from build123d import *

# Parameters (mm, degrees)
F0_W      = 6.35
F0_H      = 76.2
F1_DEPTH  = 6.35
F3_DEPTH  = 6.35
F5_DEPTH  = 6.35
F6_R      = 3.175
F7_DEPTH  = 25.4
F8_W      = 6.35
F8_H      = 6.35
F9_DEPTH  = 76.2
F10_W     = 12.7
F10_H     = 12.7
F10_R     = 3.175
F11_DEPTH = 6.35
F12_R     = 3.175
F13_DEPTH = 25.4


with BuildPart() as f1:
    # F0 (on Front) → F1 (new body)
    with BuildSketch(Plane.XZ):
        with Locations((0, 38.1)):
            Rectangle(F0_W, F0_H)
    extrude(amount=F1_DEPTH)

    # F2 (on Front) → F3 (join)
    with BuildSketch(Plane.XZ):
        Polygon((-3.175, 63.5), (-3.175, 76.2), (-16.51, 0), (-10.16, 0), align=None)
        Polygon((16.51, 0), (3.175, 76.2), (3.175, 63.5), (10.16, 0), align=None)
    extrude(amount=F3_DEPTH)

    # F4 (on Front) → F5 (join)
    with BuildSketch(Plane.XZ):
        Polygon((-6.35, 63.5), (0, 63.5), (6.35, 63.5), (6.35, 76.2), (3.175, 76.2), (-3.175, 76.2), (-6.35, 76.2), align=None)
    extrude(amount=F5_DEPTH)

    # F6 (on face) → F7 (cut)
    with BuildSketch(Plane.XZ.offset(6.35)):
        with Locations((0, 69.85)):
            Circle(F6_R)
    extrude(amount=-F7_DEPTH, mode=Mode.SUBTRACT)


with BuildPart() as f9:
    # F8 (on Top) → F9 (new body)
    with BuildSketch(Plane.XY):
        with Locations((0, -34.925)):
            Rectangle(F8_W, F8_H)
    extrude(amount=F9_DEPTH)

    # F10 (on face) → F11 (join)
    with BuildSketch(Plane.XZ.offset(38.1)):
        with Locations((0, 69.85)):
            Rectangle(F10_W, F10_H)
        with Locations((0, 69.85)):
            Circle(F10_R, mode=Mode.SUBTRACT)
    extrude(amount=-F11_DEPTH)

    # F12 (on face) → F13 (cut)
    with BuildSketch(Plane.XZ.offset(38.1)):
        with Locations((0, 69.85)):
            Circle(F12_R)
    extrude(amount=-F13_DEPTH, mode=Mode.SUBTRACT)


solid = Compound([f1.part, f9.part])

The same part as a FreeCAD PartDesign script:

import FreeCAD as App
import Part
import Sketcher
Q = App.Units.Quantity


def add_polygon(sketch, points):
    """Adds a closed chain of lines whose ends are joined by coincident constraints."""
    first, n = sketch.GeometryCount, len(points)
    for a, b in zip(points, points[1:] + points[:1]):
        sketch.addGeometry(Part.LineSegment(App.Vector(*a, 0), App.Vector(*b, 0)), False)
    for i in range(n):
        sketch.addConstraint(Sketcher.Constraint("Coincident", first + i, 2, first + (i + 1) % n, 1))

doc = App.newDocument("Part")
body = doc.addObject("PartDesign::Body", "Body")

# Sketch on XZ plane
sketch1 = body.newObject("Sketcher::SketchObject", "Sketch")
sketch1.AttachmentSupport = (doc.getObject("XZ_Plane"), [""])
sketch1.MapMode = "FlatFace"
add_polygon(sketch1, [(-3, 76), (-3, 0), (3, 0), (3, 76)])  # lines 0-3
sketch1.addConstraint([
    Sketcher.Constraint("Vertical", 0),
    Sketcher.Constraint("Horizontal", 1),
    Sketcher.Constraint("Vertical", 2),
    Sketcher.Constraint("Horizontal", 3),
    Sketcher.Constraint("Symmetric", 0, 2, 1, 2, -1, 1),
    Sketcher.Constraint("DistanceY", 0, 2, 0, 1, Q("3 in")),
    Sketcher.Constraint("DistanceX", 1, 1, 1, 2, Q("0.25 in")),
])
pad1 = body.newObject("PartDesign::Pad", "Pad")
pad1.Profile = sketch1
pad1.Length = Q("0.25 in")

# Sketch on XZ plane
sketch2 = body.newObject("Sketcher::SketchObject", "Sketch001")
sketch2.AttachmentSupport = (doc.getObject("XZ_Plane"), [""])
sketch2.MapMode = "FlatFace"
add_polygon(sketch2, [(-3, 64), (-3, 76), (-17, 0), (-10, 0)])  # lines 0-3
add_polygon(sketch2, [(17, 0), (3, 76), (3, 64), (10, 0)])  # lines 4-7
sketch2.addConstraint([
    Sketcher.Constraint("Vertical", 0),
    Sketcher.Constraint("Horizontal", 2),
    Sketcher.Constraint("Vertical", 5),
    Sketcher.Constraint("Horizontal", 7),
    Sketcher.Constraint("Symmetric", 2, 2, 6, 2, -1, 1),
    Sketcher.Constraint("Symmetric", 0, 2, 4, 2, -2),
    Sketcher.Constraint("Symmetric", 1, 2, 7, 2, -2),
    Sketcher.Constraint("Horizontal", 3, 2, 5, 2),
    Sketcher.Constraint("DistanceY", 0, 1, 0, 2, Q("0.5 in")),
    Sketcher.Constraint("DistanceY", -1, 1, 0, 2, Q("3 in")),
    Sketcher.Constraint("DistanceX", 2, 1, 2, 2, Q("0.25 in")),
    Sketcher.Constraint("DistanceX", 2, 2, -1, 1, Q("0.4 in")),
    Sketcher.Constraint("DistanceX", 0, 2, 4, 2, Q("0.25 in")),
])
pad2 = body.newObject("PartDesign::Pad", "Pad001")
pad2.Profile = sketch2
pad2.Length = Q("0.25 in")

# Sketch on XZ plane
sketch3 = body.newObject("Sketcher::SketchObject", "Sketch002")
sketch3.AttachmentSupport = (doc.getObject("XZ_Plane"), [""])
sketch3.MapMode = "FlatFace"
add_polygon(sketch3, [(-6, 64), (6, 64), (6, 76), (-6, 76)])  # lines 0-3
sketch3.addConstraint([
    Sketcher.Constraint("Horizontal", 0),
    Sketcher.Constraint("Vertical", 1),
    Sketcher.Constraint("Horizontal", 2),
    Sketcher.Constraint("Vertical", 3),
    Sketcher.Constraint("Equal", 2, 1),
    Sketcher.Constraint("DistanceX", 0, 1, 0, 2, Q("0.5 in")),
    Sketcher.Constraint("DistanceY", -1, 1, 1, 2, Q("3 in")),
    Sketcher.Constraint("DistanceX", -1, 1, 0, 2, Q("0.25 in")),
])
pad3 = body.newObject("PartDesign::Pad", "Pad002")
pad3.Profile = sketch3
pad3.Length = Q("0.25 in")

# Sketch on XZ plane
sketch4 = body.newObject("Sketcher::SketchObject", "Sketch003")
sketch4.AttachmentSupport = (doc.getObject("XZ_Plane"), [""])
sketch4.MapMode = "FlatFace"
sketch4.AttachmentOffset = App.Placement(App.Vector(0, 0, 0.25 * 25.4), App.Rotation())
sketch4.addGeometry(Part.Circle(App.Vector(0, 69.8, 0), App.Vector(0, 0, 1), 3.2), False)
sketch4.addConstraint([
    Sketcher.Constraint("PointOnObject", 0, 3, -2),
    Sketcher.Constraint("Diameter", 0, Q("0.25 in")),
    Sketcher.Constraint("DistanceY", -1, 1, 0, 3, Q("2.75 in")),
])
pocket1 = body.newObject("PartDesign::Pocket", "Pocket")
pocket1.Profile = sketch4
pocket1.Length = Q("1 in")
body2 = doc.addObject("PartDesign::Body", "Body001")

# Sketch on XY plane
sketch5 = body2.newObject("Sketcher::SketchObject", "Sketch004")
sketch5.AttachmentSupport = (doc.getObject("XY_Plane001"), [""])
sketch5.MapMode = "FlatFace"
add_polygon(sketch5, [(-3, -32), (-3, -38), (3, -38), (3, -32)])  # lines 0-3
sketch5.addConstraint([
    Sketcher.Constraint("Vertical", 0),
    Sketcher.Constraint("Horizontal", 1),
    Sketcher.Constraint("Vertical", 2),
    Sketcher.Constraint("Horizontal", 3),
    Sketcher.Constraint("Equal", 3, 0),
    Sketcher.Constraint("DistanceX", 1, 1, 1, 2, Q("0.25 in")),
    Sketcher.Constraint("DistanceY", 0, 2, -1, 1, Q("1.5 in")),
    Sketcher.Constraint("DistanceX", 0, 2, -1, 1, Q("0.125 in")),
])
pad4 = body2.newObject("PartDesign::Pad", "Pad003")
pad4.Profile = sketch5
pad4.Length = Q("3 in")

# Sketch on XZ plane
sketch6 = body2.newObject("Sketcher::SketchObject", "Sketch005")
sketch6.AttachmentSupport = (doc.getObject("XZ_Plane001"), [""])
sketch6.MapMode = "FlatFace"
sketch6.AttachmentOffset = App.Placement(App.Vector(0, 0, 1.5 * 25.4), App.Rotation())
add_polygon(sketch6, [(-6.3, 76.2), (-6.3, 63.5), (6.3, 63.5), (6.3, 76.2)])  # lines 0-3
sketch6.addGeometry(Part.Circle(App.Vector(0, 69.8, 0), App.Vector(0, 0, 1), 3.2), False)  # 4
sketch6.addConstraint([
    Sketcher.Constraint("Vertical", 0),
    Sketcher.Constraint("Horizontal", 1),
    Sketcher.Constraint("Vertical", 2),
    Sketcher.Constraint("Horizontal", 3),
    Sketcher.Constraint("PointOnObject", 4, 3, -2),
    Sketcher.Constraint("Equal", 3, 0),
    Sketcher.Constraint("Diameter", 4, Q("0.25 in")),
    Sketcher.Constraint("DistanceX", 1, 1, 1, 2, Q("0.5 in")),
    Sketcher.Constraint("DistanceY", -1, 1, 2, 2, Q("3 in")),
    Sketcher.Constraint("DistanceY", -1, 1, 4, 3, Q("2.75 in")),
    Sketcher.Constraint("DistanceX", 0, 2, -1, 1, Q("0.25 in")),
])
pad5 = body2.newObject("PartDesign::Pad", "Pad004")
pad5.Profile = sketch6
pad5.Length = Q("0.25 in")
pad5.Reversed = True

# Sketch on XZ plane
sketch7 = body2.newObject("Sketcher::SketchObject", "Sketch006")
sketch7.AttachmentSupport = (doc.getObject("XZ_Plane001"), [""])
sketch7.MapMode = "FlatFace"
sketch7.AttachmentOffset = App.Placement(App.Vector(0, 0, 1.5 * 25.4), App.Rotation())
sketch7.addGeometry(Part.Circle(App.Vector(0, 69.8, 0), App.Vector(0, 0, 1), 3.2), False)
sketch7.addConstraint([
    Sketcher.Constraint("PointOnObject", 0, 3, -2),
    Sketcher.Constraint("Diameter", 0, Q("0.25 in")),
    Sketcher.Constraint("DistanceY", -1, 1, 0, 3, Q("2.75 in")),
])
pocket2 = body2.newObject("PartDesign::Pocket", "Pocket001")
pocket2.Profile = sketch7
pocket2.Length = Q("1 in")

doc.recompute()
